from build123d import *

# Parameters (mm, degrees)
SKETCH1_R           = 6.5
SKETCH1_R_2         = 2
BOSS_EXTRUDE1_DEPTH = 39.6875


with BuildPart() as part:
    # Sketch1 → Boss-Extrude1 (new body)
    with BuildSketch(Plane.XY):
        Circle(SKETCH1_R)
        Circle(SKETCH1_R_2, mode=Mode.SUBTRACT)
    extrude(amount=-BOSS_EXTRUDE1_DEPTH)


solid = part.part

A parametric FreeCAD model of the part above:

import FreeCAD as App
import Part
import Sketcher

V = App.Vector

doc = App.newDocument("Part")
body = doc.addObject("PartDesign::Body", "Body")

sketch1 = body.newObject("Sketcher::SketchObject", "Sketch")
sketch1.AttachmentSupport = (doc.getObject("XY_Plane"), [""])
sketch1.MapMode = "FlatFace"
sketch1.addGeometry([
    Part.Circle(V(0, 0, 0), V(0, 0, 1), 6.5),
    Part.Circle(V(0, 0, 0), V(0, 0, 1), 2),
], False)
sketch1.addConstraint([
    Sketcher.Constraint("Coincident", 0, 3, -1, 1),
    Sketcher.Constraint("Coincident", 1, 3, -1, 1),
    Sketcher.Constraint("Diameter", 0, 13.0),
    Sketcher.Constraint("Diameter", 1, 4.0),
])
pad1 = body.newObject("PartDesign::Pad", "Pad")
pad1.Profile = sketch1
pad1.Length = 39.6875
pad1.Reversed = True

doc.recompute()
